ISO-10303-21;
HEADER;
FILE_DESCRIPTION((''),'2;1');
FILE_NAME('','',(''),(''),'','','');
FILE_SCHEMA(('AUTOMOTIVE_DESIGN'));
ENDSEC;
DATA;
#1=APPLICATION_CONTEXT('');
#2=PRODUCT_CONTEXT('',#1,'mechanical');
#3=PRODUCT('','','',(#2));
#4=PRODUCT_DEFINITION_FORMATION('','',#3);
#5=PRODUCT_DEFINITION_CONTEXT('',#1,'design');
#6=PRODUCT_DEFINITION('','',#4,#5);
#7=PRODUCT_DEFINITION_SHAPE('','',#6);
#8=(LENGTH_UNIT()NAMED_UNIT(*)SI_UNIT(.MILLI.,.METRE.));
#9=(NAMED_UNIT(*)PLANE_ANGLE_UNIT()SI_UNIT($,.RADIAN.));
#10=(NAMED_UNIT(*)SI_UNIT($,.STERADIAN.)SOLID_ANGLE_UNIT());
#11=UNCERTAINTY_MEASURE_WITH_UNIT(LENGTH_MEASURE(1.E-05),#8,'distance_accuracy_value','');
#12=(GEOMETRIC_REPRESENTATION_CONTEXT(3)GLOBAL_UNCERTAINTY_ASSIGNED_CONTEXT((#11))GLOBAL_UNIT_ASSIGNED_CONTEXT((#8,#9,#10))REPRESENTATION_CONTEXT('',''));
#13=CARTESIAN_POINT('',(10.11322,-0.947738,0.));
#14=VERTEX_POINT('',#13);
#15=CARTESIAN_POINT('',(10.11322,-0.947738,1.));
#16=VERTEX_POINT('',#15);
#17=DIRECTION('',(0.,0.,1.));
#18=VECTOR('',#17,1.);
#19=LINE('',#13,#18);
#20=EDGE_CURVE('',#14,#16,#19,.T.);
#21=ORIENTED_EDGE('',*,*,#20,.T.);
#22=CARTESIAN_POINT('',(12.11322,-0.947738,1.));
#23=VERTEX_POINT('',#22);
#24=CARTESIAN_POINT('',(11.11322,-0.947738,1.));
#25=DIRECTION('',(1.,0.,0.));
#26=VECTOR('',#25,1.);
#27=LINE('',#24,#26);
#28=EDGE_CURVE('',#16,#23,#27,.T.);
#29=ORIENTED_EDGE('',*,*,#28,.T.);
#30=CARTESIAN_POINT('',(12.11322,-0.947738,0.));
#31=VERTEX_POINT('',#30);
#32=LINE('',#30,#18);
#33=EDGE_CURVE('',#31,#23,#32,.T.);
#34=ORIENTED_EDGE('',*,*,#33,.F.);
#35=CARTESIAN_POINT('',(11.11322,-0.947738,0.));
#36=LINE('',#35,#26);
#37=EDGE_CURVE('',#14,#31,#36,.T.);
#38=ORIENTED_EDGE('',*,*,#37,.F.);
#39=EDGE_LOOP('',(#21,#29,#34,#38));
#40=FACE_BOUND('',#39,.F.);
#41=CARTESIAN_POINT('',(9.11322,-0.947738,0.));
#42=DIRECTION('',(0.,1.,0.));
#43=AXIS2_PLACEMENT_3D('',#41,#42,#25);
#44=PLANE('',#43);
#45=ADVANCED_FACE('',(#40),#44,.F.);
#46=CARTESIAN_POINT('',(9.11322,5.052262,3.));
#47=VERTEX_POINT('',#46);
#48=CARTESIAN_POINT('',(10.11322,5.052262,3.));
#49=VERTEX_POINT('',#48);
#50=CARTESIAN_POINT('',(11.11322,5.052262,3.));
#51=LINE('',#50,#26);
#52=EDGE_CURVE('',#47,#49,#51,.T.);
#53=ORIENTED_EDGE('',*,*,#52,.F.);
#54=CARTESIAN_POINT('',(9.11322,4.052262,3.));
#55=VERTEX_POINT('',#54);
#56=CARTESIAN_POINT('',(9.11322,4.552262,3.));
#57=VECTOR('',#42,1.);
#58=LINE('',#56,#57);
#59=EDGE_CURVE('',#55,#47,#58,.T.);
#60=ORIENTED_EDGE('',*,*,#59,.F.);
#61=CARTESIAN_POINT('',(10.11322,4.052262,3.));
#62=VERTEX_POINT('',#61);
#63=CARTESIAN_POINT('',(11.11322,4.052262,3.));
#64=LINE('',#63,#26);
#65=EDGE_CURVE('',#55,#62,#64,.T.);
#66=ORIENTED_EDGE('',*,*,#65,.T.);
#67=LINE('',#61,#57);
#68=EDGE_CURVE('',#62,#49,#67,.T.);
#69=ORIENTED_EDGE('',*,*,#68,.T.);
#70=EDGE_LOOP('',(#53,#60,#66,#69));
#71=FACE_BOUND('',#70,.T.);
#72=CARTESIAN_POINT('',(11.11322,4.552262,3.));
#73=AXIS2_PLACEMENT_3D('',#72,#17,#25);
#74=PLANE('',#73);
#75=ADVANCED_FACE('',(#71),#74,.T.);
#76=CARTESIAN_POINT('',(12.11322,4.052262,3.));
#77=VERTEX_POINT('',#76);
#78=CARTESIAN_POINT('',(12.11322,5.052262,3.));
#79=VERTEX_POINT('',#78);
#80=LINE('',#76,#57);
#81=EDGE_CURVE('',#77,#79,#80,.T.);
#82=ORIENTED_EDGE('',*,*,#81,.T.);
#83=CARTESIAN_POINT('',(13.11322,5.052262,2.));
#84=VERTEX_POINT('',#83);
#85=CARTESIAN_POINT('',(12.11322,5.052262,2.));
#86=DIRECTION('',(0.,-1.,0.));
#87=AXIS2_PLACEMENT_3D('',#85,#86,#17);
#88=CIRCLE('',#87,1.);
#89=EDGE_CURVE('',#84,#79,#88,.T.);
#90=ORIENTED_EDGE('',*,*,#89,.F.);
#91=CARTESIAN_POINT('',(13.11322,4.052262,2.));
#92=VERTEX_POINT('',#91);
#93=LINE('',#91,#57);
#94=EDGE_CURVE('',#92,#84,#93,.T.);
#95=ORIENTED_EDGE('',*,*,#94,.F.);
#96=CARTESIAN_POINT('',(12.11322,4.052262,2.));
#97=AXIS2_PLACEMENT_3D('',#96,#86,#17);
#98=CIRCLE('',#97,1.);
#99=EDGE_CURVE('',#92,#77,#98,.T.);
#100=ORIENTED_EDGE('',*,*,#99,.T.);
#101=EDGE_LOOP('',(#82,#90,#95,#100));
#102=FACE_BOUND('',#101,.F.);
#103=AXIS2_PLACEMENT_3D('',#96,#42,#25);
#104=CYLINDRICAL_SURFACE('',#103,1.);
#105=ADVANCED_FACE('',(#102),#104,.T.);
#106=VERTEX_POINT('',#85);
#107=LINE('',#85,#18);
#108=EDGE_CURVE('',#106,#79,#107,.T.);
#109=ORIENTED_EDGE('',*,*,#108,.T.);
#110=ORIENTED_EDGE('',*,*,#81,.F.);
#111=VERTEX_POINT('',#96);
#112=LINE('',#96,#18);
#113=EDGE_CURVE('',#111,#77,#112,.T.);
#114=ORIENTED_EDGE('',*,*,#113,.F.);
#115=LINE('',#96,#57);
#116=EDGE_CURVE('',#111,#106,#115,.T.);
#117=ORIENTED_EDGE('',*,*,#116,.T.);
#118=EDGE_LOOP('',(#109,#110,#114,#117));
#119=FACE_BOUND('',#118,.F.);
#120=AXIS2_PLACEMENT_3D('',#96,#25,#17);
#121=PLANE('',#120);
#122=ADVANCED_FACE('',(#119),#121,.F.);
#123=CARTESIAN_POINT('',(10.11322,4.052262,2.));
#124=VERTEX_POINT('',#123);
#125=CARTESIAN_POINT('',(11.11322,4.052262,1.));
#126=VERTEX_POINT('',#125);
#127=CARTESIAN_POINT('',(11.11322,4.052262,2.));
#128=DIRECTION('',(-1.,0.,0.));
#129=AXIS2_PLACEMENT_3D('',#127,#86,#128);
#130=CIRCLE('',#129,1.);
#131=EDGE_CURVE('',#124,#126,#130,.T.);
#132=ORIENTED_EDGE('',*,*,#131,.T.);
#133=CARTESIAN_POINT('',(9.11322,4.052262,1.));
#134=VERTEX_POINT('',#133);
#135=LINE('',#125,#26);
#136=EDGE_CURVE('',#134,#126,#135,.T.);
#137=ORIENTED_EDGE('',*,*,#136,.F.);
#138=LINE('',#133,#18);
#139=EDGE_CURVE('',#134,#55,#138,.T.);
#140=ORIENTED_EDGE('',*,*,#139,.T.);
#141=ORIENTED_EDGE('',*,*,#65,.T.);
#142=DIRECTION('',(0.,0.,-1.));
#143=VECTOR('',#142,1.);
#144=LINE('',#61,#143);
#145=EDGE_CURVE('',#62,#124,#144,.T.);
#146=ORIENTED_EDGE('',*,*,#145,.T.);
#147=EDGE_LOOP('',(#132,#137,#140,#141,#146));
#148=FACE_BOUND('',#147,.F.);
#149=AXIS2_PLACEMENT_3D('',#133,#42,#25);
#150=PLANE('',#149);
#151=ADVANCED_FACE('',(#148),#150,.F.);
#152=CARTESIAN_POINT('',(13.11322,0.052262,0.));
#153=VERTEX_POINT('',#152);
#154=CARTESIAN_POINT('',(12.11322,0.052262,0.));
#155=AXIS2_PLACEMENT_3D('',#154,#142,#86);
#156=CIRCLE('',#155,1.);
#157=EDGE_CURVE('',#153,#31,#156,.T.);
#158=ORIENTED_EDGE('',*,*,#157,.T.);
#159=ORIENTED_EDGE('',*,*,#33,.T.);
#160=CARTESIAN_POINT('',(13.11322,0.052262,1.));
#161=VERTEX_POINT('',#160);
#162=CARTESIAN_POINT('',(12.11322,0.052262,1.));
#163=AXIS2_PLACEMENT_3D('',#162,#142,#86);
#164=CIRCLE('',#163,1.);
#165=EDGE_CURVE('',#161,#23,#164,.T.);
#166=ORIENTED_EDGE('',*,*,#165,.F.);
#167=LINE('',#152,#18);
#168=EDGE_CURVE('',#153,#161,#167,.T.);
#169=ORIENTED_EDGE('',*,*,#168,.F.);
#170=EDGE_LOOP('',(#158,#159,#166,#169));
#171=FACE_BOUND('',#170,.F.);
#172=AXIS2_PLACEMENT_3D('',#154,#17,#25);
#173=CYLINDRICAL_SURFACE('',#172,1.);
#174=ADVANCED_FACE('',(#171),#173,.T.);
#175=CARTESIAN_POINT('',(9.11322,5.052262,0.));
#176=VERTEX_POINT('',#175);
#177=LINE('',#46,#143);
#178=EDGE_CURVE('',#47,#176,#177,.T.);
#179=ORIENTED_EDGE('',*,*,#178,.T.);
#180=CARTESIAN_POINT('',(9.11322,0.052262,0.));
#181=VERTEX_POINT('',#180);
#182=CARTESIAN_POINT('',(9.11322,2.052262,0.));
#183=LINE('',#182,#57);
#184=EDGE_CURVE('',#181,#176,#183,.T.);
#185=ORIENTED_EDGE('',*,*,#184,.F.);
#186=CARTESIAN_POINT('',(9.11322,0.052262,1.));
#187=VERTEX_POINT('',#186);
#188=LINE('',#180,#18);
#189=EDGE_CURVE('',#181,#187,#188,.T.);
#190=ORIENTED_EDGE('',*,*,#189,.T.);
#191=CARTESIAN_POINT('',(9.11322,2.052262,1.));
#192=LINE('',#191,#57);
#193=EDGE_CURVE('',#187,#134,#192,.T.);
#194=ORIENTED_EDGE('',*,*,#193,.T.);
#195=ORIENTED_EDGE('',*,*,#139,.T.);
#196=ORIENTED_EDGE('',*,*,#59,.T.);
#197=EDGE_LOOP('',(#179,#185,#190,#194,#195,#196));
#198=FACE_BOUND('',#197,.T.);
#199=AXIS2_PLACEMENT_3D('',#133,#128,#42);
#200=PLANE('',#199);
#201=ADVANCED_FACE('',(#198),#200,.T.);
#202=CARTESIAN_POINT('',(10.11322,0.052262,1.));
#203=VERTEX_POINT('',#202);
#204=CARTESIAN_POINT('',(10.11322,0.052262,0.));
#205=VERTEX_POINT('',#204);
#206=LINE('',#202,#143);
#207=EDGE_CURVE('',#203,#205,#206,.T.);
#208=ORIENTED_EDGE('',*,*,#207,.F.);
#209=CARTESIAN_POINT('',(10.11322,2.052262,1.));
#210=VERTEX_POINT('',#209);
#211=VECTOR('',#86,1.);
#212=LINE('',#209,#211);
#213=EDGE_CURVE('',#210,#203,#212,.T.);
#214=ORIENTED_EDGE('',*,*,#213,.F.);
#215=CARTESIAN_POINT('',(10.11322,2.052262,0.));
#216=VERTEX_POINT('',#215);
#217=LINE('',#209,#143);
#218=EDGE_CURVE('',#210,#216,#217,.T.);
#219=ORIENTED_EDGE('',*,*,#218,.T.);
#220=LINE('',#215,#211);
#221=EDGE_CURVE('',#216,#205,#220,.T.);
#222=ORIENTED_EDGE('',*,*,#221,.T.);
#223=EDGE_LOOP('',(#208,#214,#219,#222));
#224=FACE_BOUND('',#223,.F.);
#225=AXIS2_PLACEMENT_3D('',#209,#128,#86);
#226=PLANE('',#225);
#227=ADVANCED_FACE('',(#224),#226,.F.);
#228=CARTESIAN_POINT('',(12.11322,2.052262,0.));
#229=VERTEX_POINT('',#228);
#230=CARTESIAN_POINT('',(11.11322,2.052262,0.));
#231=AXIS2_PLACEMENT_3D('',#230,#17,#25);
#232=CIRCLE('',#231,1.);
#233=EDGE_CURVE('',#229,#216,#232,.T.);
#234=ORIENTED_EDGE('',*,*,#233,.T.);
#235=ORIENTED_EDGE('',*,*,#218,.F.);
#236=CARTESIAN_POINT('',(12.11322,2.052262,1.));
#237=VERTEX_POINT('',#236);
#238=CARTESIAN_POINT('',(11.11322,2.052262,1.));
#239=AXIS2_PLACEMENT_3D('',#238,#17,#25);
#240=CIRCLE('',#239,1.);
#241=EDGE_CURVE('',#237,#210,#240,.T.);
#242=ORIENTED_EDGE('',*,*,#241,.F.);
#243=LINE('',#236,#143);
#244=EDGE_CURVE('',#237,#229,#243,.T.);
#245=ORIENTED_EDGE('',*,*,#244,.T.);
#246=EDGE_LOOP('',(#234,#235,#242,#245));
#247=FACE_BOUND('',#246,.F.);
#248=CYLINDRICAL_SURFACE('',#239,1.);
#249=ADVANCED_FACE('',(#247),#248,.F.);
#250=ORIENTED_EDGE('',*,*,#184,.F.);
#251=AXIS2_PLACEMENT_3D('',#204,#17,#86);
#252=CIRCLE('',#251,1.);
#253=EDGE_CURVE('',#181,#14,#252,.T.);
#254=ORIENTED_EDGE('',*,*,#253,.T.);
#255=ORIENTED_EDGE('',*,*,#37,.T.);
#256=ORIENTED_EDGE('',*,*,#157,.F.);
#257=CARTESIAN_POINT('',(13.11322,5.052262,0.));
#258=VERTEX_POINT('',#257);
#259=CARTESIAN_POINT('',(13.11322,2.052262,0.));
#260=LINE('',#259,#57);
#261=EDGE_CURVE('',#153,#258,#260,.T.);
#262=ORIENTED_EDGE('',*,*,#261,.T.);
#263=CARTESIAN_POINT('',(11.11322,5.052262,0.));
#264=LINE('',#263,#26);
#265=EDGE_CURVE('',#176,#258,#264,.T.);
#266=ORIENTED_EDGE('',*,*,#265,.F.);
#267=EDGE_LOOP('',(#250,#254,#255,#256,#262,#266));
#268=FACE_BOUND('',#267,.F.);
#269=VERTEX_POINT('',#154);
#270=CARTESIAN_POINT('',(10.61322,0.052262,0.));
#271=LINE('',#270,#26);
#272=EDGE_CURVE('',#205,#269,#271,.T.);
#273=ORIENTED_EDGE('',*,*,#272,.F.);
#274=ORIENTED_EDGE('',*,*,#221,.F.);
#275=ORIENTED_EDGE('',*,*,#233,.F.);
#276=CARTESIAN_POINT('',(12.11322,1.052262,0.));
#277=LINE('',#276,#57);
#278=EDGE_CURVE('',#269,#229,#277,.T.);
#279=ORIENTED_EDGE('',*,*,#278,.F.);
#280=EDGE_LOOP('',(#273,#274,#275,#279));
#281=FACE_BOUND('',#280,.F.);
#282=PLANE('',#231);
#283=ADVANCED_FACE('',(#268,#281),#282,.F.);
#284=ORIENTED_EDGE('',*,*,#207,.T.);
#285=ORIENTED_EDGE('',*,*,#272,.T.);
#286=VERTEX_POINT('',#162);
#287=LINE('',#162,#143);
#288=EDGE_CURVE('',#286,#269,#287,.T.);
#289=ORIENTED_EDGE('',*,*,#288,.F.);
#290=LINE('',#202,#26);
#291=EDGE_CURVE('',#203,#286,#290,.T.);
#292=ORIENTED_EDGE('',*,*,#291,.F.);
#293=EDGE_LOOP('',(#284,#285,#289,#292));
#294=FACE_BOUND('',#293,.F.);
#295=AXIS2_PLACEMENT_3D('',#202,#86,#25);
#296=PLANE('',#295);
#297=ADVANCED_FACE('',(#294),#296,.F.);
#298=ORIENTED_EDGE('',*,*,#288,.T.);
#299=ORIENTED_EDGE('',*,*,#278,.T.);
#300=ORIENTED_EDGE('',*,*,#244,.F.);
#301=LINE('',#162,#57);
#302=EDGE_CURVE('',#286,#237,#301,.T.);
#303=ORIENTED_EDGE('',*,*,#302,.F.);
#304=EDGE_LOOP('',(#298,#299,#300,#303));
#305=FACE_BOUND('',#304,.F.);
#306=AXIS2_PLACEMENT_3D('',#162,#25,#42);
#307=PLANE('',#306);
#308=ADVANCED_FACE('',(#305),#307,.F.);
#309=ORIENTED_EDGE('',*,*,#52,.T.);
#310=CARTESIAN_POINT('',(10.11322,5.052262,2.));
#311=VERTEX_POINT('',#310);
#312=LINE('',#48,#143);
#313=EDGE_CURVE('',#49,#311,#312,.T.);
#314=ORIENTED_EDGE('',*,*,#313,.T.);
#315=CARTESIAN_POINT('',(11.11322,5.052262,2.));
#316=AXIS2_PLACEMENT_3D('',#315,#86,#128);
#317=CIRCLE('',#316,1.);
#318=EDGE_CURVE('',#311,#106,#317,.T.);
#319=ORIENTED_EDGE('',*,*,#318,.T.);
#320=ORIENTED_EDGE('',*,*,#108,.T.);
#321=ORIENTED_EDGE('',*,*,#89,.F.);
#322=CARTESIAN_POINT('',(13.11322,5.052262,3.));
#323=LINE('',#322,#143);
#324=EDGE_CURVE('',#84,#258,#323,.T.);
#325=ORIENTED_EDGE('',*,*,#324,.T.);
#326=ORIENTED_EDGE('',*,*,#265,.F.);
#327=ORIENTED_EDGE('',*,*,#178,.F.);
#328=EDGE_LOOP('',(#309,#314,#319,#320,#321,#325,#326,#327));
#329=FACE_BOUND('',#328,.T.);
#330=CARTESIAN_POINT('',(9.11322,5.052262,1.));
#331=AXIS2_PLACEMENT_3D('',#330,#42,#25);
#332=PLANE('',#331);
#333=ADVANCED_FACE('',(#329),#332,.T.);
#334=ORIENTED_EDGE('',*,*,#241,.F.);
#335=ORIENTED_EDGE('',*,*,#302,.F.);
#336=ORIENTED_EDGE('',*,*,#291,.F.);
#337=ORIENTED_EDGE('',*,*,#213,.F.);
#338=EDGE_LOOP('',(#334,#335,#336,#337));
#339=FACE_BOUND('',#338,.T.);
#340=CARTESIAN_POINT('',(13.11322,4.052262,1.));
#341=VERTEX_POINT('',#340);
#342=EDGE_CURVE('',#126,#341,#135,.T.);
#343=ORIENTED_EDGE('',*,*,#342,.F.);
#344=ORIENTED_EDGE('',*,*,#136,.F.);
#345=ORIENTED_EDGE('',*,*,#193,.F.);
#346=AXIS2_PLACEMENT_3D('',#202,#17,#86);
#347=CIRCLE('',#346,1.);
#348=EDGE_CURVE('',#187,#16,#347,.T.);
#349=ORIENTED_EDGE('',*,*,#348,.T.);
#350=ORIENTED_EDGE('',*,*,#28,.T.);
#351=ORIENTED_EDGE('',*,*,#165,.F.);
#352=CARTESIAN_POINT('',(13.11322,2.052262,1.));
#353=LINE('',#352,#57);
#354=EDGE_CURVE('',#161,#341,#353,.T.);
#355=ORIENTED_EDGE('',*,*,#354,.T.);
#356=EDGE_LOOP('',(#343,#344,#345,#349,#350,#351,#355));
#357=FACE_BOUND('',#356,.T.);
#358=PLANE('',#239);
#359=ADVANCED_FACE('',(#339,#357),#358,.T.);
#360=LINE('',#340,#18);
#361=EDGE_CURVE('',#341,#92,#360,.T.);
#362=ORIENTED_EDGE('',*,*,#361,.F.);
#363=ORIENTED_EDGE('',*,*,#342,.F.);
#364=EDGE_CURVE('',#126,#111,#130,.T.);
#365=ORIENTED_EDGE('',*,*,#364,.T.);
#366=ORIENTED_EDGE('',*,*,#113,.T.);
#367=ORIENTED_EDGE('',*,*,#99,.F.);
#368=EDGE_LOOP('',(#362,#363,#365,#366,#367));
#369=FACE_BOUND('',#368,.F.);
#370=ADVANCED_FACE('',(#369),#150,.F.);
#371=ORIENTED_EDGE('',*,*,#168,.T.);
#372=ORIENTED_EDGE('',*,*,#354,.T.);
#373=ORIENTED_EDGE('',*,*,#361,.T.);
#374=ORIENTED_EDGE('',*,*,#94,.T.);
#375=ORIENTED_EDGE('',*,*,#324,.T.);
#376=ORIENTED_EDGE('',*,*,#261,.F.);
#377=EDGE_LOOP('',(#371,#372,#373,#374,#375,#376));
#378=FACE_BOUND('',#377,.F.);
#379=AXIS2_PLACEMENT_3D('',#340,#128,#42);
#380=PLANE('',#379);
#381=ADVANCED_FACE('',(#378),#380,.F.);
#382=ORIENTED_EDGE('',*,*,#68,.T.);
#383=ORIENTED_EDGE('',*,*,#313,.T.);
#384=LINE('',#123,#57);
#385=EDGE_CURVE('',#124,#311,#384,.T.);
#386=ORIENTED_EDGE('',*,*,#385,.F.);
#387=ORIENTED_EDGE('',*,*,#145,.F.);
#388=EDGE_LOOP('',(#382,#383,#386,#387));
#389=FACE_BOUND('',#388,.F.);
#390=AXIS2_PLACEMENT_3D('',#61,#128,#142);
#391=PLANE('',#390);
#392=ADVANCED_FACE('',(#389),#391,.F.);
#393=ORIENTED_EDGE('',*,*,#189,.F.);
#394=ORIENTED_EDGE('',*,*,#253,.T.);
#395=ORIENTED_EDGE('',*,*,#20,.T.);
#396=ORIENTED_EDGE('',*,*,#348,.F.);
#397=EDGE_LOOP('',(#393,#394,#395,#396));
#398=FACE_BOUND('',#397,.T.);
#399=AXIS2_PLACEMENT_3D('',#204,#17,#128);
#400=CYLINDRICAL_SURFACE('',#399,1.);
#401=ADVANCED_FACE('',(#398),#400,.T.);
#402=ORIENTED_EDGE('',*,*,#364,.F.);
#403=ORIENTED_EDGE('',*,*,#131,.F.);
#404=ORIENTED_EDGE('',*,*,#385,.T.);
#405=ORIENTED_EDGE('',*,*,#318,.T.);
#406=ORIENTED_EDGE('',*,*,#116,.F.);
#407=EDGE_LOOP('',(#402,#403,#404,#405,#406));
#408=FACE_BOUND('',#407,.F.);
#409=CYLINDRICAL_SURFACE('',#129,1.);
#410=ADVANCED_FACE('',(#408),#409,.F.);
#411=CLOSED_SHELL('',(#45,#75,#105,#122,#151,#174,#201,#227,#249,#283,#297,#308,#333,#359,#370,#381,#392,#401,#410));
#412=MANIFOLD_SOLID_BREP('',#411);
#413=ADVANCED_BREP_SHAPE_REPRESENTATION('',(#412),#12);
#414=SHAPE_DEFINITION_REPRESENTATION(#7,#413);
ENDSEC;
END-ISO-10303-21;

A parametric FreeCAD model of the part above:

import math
import FreeCAD as App
import Part
import Sketcher

V = App.Vector


def edges_at(feature, points):
    """Names of the edges that pass closest to the given points."""
    edges = feature.Shape.Edges
    near = lambda p: min(range(len(edges)), key=lambda i: edges[i].distToShape(Part.Vertex(*p))[0])
    return sorted({f"Edge{near(p) + 1}" for p in points})

doc = App.newDocument("Part")
params = doc.addObject("Spreadsheet::Sheet", "Params")
for row, (alias, value) in enumerate([
    ("sketch1_width", "4 mm"),
    ("sketch1_height", "6 mm"),
    ("pad1_length", "1 mm"),
    ("sketch2_radius", "1 mm"),
    ("pocket1_length", "25 mm"),
    ("sketch3_width", "4 mm"),
    ("sketch3_height", "1 mm"),
    ("pad2_length", "2 mm"),
    ("fillet_radius", "1 mm"),
    ("sketch4_radius", "1 mm"),
    ("sketch4_height", "1 mm"),
    ("pocket2_length", "1 mm"),
], start=1):
    params.set(f"A{row}", alias)
    params.set(f"B{row}", "=" + value)
    params.setAlias(f"B{row}", alias)

body = doc.addObject("PartDesign::Body", "Body")

# Sketch on XY plane
sketch1 = body.newObject("Sketcher::SketchObject", "Sketch")
sketch1.AttachmentSupport = (doc.getObject("XY_Plane"), [""])
sketch1.MapMode = "FlatFace"
sketch1.addGeometry(Part.LineSegment(V(9.1, 5.1, 0), V(9.1, -0.9, 0)), False)
sketch1.addGeometry(Part.LineSegment(V(9.1, -0.9, 0), V(13.1, -0.9, 0)), False)
sketch1.addGeometry(Part.LineSegment(V(13.1, -0.9, 0), V(13.1, 5.1, 0)), False)
sketch1.addGeometry(Part.LineSegment(V(13.1, 5.1, 0), V(9.1, 5.1, 0)), False)
sketch1.addConstraint(Sketcher.Constraint("Coincident", 0, 2, 1, 1))
sketch1.addConstraint(Sketcher.Constraint("Coincident", 1, 2, 2, 1))
sketch1.addConstraint(Sketcher.Constraint("Coincident", 2, 2, 3, 1))
sketch1.addConstraint(Sketcher.Constraint("Coincident", 3, 2, 0, 1))
sketch1.addConstraint(Sketcher.Constraint("Vertical", 0))
sketch1.addConstraint(Sketcher.Constraint("Horizontal", 1))
sketch1.addConstraint(Sketcher.Constraint("Vertical", 2))
sketch1.addConstraint(Sketcher.Constraint("Horizontal", 3))
sketch1.addConstraint(Sketcher.Constraint("DistanceX", 1, 1, 1, 2, 4.0))
sketch1.addConstraint(Sketcher.Constraint("DistanceY", 0, 2, 0, 1, 6.0))
sketch1.addConstraint(Sketcher.Constraint("DistanceX", -1, 1, 0, 2, 9.11322))
sketch1.addConstraint(Sketcher.Constraint("DistanceY", 0, 2, -1, 1, 0.947738))
sketch1.setExpression("Constraints[8]", "Params.sketch1_width")
sketch1.setExpression("Constraints[9]", "Params.sketch1_height")
pad1 = body.newObject("PartDesign::Pad", "Pad")
pad1.Profile = sketch1
pad1.setExpression("Length", "Params.pad1_length")

# Sketch on XY plane
sketch2 = body.newObject("Sketcher::SketchObject", "Sketch001")
sketch2.AttachmentSupport = (doc.getObject("XY_Plane"), [""])
sketch2.MapMode = "FlatFace"
sketch2.AttachmentOffset = App.Placement(V(0, 0, 1), App.Rotation())
sketch2.addGeometry(Part.LineSegment(V(10.1, 2.1, 0), V(10.1, 0.1, 0)), False)
sketch2.addGeometry(Part.LineSegment(V(10.1, 0.1, 0), V(12.1, 0.1, 0)), False)
sketch2.addGeometry(Part.LineSegment(V(12.1, 0.1, 0), V(12.1, 2.1, 0)), False)
sketch2.addGeometry(Part.ArcOfCircle(Part.Circle(V(11.1, 2.1, 0), V(0, 0, 1), 1), math.radians(0), math.radians(180)), False)
sketch2.addConstraint(Sketcher.Constraint("Coincident", 0, 2, 1, 1))
sketch2.addConstraint(Sketcher.Constraint("Coincident", 1, 2, 2, 1))
sketch2.addConstraint(Sketcher.Constraint("Tangent", 2, 2, 3, 1))
sketch2.addConstraint(Sketcher.Constraint("Tangent", 3, 2, 0, 1))
sketch2.addConstraint(Sketcher.Constraint("Vertical", 0))
sketch2.addConstraint(Sketcher.Constraint("Horizontal", 1))
sketch2.addConstraint(Sketcher.Constraint("Vertical", 2))
sketch2.addConstraint(Sketcher.Constraint("Equal", 1, 0))
sketch2.addConstraint(Sketcher.Constraint("Radius", 3, 1.0))
sketch2.addConstraint(Sketcher.Constraint("DistanceX", -1, 1, 3, 3, 11.11322))
sketch2.addConstraint(Sketcher.Constraint("DistanceY", -1, 1, 3, 3, 2.052262))
sketch2.setExpression("Constraints[8]", "Params.sketch2_radius")
pocket1 = body.newObject("PartDesign::Pocket", "Pocket")
pocket1.Profile = sketch2
pocket1.setExpression("Length", "Params.pocket1_length")

# Sketch on XY plane
sketch3 = body.newObject("Sketcher::SketchObject", "Sketch002")
sketch3.AttachmentSupport = (doc.getObject("XY_Plane"), [""])
sketch3.MapMode = "FlatFace"
sketch3.AttachmentOffset = App.Placement(V(0, 0, 1), App.Rotation())
sketch3.addGeometry(Part.LineSegment(V(9.1, 5.1, 0), V(9.1, 4.1, 0)), False)
sketch3.addGeometry(Part.LineSegment(V(9.1, 4.1, 0), V(13.1, 4.1, 0)), False)
sketch3.addGeometry(Part.LineSegment(V(13.1, 4.1, 0), V(13.1, 5.1, 0)), False)
sketch3.addGeometry(Part.LineSegment(V(13.1, 5.1, 0), V(9.1, 5.1, 0)), False)
sketch3.addConstraint(Sketcher.Constraint("Coincident", 0, 2, 1, 1))
sketch3.addConstraint(Sketcher.Constraint("Coincident", 1, 2, 2, 1))
sketch3.addConstraint(Sketcher.Constraint("Coincident", 2, 2, 3, 1))
sketch3.addConstraint(Sketcher.Constraint("Coincident", 3, 2, 0, 1))
sketch3.addConstraint(Sketcher.Constraint("Vertical", 0))
sketch3.addConstraint(Sketcher.Constraint("Horizontal", 1))
sketch3.addConstraint(Sketcher.Constraint("Vertical", 2))
sketch3.addConstraint(Sketcher.Constraint("Horizontal", 3))
sketch3.addConstraint(Sketcher.Constraint("DistanceX", 1, 1, 1, 2, 4.0))
sketch3.addConstraint(Sketcher.Constraint("DistanceY", 0, 2, 0, 1, 1.0))
sketch3.addConstraint(Sketcher.Constraint("DistanceX", -1, 1, 0, 2, 9.11322))
sketch3.addConstraint(Sketcher.Constraint("DistanceY", -1, 1, 0, 2, 4.052262))
sketch3.setExpression("Constraints[8]", "Params.sketch3_width")
sketch3.setExpression("Constraints[9]", "Params.sketch3_height")
pad2 = body.newObject("PartDesign::Pad", "Pad001")
pad2.Profile = sketch3
pad2.setExpression("Length", "Params.pad2_length")
doc.recompute()

fillet = body.newObject("PartDesign::Fillet", "Fillet")
fillet.Base = (pad2, edges_at(pad2, [(13.113, 4.552, 3), (13.113, -0.948, 0.5), (9.113, -0.948, 0.5)]))
fillet.setExpression("Radius", "Params.fillet_radius")

# Sketch on XZ plane
sketch4 = body.newObject("Sketcher::SketchObject", "Sketch003")
sketch4.AttachmentSupport = (doc.getObject("XZ_Plane"), [""])
sketch4.MapMode = "FlatFace"
sketch4.AttachmentOffset = App.Placement(V(0, 0, -4.052262), App.Rotation())
sketch4.addGeometry(Part.LineSegment(V(10.1, 3, 0), V(10.1, 2, 0)), False)
sketch4.addGeometry(Part.ArcOfCircle(Part.Circle(V(11.1, 2, 0), V(0, 0, 1), 1), math.radians(180), math.radians(360)), False)
sketch4.addGeometry(Part.LineSegment(V(12.1, 2, 0), V(12.1, 3, 0)), False)
sketch4.addGeometry(Part.LineSegment(V(12.1, 3, 0), V(10.1, 3, 0)), False)
sketch4.addConstraint(Sketcher.Constraint("Tangent", 0, 2, 1, 1))
sketch4.addConstraint(Sketcher.Constraint("Tangent", 1, 2, 2, 1))
sketch4.addConstraint(Sketcher.Constraint("Coincident", 2, 2, 3, 1))
sketch4.addConstraint(Sketcher.Constraint("Coincident", 3, 2, 0, 1))
sketch4.addConstraint(Sketcher.Constraint("Vertical", 0))
sketch4.addConstraint(Sketcher.Constraint("Vertical", 2))
sketch4.addConstraint(Sketcher.Constraint("Horizontal", 3))
sketch4.addConstraint(Sketcher.Constraint("Radius", 1, 1.0))
sketch4.addConstraint(Sketcher.Constraint("DistanceY", 0, 2, 0, 1, 1.0))
sketch4.addConstraint(Sketcher.Constraint("DistanceY", -1, 1, 1, 3, 2.0))
sketch4.addConstraint(Sketcher.Constraint("DistanceX", -1, 1, 1, 3, 11.11322))
sketch4.setExpression("Constraints[7]", "Params.sketch4_radius")
sketch4.setExpression("Constraints[8]", "Params.sketch4_height")
pocket2 = body.newObject("PartDesign::Pocket", "Pocket001")
pocket2.Profile = sketch4
pocket2.setExpression("Length", "Params.pocket2_length")

doc.recompute()
